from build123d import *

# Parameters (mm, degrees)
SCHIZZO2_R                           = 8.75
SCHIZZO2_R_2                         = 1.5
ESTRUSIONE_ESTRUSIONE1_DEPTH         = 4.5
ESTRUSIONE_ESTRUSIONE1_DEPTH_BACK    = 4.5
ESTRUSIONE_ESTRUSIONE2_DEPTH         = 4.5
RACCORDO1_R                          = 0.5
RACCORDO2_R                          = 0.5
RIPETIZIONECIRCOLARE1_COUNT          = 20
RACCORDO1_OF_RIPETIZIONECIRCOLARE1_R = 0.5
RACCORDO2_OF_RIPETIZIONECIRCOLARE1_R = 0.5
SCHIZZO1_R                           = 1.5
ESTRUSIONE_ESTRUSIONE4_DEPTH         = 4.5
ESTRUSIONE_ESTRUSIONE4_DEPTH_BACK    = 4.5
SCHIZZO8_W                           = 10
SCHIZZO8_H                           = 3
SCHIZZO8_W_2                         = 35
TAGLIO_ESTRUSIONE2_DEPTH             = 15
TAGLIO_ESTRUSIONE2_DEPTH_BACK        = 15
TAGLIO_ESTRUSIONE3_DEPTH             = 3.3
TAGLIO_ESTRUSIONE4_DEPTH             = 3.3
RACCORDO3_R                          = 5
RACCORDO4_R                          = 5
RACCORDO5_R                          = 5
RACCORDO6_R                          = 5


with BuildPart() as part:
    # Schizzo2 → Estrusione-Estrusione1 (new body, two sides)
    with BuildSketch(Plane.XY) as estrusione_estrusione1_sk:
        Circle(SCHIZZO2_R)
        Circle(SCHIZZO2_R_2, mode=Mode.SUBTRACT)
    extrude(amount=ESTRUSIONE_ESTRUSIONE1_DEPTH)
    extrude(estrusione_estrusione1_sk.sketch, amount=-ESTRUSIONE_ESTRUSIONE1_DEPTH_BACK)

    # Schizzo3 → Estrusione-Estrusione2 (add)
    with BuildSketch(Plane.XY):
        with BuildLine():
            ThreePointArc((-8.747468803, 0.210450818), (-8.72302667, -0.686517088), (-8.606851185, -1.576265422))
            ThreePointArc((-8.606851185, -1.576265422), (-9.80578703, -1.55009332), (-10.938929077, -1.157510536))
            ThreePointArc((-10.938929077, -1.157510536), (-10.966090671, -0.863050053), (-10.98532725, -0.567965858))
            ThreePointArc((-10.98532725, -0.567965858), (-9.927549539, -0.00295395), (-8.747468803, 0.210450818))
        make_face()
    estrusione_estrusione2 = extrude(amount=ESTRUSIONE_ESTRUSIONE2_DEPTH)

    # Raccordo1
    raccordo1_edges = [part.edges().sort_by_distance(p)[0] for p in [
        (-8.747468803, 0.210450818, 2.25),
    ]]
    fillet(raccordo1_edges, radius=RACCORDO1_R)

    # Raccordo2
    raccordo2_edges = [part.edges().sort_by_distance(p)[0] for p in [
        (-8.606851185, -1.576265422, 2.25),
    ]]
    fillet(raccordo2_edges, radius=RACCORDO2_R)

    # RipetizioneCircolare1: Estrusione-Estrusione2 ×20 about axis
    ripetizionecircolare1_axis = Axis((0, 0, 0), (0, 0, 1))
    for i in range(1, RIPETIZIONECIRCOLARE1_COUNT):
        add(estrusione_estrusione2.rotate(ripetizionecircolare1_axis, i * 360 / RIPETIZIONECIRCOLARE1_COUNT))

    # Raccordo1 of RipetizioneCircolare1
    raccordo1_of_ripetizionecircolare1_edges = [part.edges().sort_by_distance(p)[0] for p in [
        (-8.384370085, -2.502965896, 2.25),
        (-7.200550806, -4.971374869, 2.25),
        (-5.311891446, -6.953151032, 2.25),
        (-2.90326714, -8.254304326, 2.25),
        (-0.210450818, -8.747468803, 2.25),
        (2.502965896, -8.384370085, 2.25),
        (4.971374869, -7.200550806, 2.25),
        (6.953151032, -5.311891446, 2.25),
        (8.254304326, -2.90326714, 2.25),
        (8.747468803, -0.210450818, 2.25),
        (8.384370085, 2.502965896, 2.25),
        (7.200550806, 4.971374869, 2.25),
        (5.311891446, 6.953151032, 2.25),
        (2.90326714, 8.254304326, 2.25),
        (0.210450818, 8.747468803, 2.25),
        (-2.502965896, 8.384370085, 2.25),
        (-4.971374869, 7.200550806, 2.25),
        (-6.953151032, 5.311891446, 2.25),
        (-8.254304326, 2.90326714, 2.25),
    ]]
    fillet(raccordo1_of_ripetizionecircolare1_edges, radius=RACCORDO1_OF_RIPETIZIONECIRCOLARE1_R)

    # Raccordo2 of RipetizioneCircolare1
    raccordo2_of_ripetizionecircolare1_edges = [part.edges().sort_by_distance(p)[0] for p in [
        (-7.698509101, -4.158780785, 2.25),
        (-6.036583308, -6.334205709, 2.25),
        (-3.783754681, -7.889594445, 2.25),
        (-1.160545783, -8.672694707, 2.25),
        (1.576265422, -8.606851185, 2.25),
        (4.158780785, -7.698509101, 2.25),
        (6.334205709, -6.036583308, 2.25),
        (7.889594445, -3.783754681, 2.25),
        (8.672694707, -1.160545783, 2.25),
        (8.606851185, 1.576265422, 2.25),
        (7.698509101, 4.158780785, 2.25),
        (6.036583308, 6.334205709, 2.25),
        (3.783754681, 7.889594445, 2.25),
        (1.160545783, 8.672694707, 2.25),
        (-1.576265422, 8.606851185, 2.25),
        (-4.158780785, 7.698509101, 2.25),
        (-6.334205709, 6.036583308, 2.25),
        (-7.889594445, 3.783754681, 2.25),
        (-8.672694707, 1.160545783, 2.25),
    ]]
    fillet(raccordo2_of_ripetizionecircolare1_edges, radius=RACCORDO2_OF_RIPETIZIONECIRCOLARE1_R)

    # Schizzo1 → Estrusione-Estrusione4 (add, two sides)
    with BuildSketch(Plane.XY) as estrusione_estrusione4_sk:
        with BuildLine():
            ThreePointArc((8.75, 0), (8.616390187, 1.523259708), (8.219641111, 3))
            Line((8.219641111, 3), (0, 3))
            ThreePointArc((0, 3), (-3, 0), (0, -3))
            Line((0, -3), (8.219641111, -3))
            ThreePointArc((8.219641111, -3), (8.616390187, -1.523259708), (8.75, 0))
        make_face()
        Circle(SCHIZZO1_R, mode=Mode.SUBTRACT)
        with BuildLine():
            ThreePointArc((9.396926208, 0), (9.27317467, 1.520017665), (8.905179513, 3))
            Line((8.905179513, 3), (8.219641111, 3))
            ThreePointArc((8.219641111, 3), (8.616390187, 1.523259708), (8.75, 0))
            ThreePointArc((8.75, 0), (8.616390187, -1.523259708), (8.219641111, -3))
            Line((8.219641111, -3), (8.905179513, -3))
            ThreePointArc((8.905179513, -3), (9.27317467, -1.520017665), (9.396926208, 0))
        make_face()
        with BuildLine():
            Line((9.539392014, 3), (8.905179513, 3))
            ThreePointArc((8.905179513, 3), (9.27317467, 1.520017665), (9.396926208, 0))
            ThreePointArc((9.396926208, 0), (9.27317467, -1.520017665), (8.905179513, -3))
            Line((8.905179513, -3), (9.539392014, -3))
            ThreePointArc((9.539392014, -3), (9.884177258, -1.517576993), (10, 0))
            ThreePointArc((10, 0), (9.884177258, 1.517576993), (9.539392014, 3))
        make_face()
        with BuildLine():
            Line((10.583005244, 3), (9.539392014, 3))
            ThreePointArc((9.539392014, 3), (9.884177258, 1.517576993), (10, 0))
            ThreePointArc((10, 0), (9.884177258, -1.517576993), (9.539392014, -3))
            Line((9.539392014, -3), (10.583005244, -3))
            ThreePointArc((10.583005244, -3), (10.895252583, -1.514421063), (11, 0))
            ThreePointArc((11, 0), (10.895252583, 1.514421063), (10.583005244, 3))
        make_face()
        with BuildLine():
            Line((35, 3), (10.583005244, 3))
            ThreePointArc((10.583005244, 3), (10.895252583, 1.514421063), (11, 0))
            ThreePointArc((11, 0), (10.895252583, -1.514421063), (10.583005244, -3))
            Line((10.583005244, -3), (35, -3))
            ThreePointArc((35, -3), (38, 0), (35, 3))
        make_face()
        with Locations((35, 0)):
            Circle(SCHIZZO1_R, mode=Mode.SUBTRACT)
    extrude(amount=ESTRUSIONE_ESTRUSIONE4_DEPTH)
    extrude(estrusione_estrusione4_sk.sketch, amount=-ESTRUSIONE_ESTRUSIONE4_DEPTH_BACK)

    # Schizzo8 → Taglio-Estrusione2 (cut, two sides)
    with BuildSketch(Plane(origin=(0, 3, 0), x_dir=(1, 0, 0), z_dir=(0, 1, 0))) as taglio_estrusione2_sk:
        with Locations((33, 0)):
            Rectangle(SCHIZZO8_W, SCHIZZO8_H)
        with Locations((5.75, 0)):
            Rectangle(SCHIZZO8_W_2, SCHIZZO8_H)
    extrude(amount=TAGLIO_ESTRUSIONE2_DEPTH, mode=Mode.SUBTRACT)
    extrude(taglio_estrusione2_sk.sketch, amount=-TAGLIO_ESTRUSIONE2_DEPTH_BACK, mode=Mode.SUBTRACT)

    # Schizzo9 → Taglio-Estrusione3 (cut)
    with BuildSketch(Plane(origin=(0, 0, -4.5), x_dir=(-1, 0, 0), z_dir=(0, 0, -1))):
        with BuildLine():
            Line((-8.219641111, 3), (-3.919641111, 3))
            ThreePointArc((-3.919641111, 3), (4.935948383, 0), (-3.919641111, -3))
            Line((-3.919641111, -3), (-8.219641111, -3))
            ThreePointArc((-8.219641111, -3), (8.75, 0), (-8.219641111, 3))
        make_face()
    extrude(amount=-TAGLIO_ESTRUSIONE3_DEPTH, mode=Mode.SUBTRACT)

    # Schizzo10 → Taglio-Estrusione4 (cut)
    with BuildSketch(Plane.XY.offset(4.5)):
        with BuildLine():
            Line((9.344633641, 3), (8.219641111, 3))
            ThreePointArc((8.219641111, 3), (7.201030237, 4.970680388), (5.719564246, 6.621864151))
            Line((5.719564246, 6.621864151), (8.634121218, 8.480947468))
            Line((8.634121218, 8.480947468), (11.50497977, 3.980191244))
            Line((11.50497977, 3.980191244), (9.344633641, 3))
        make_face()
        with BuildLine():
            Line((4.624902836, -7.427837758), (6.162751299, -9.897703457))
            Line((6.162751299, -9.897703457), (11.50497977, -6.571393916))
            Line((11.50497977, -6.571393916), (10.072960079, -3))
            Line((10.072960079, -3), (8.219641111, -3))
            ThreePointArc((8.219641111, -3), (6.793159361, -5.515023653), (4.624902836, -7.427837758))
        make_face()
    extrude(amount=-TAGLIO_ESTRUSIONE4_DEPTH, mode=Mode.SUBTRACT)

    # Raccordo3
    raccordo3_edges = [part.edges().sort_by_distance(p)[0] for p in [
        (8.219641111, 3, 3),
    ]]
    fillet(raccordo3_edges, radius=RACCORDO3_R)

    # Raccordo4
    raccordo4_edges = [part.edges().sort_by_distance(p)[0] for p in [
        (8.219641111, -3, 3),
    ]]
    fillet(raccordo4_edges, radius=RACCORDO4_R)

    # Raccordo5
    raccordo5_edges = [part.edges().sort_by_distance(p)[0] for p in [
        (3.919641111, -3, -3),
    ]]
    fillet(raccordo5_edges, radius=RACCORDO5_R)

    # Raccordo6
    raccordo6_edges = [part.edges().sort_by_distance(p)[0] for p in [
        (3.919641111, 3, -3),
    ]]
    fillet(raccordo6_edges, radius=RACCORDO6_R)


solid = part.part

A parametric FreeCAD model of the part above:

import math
import FreeCAD as App
import Part
import Sketcher
from FreeCAD import Vector


def edges_at(feature, points):
    """Names of the edges that pass closest to the given points."""
    edges = feature.Shape.Edges
    near = lambda p: min(range(len(edges)), key=lambda i: edges[i].distToShape(Part.Vertex(*p))[0])
    return sorted({f"Edge{near(p) + 1}" for p in points})


def add_polygon(sketch, points):
    """Adds a closed chain of lines whose ends are joined by coincident constraints."""
    first, n = sketch.GeometryCount, len(points)
    for a, b in zip(points, points[1:] + points[:1]):
        sketch.addGeometry(Part.LineSegment(App.Vector(*a, 0), App.Vector(*b, 0)), False)
    for i in range(n):
        sketch.addConstraint(Sketcher.Constraint("Coincident", first + i, 2, first + (i + 1) % n, 1))

doc = App.newDocument("Part")
body = doc.addObject("PartDesign::Body", "Body")

# Sketch on XY plane
sketch1 = doc.addObject("Sketcher::SketchObject", "Sketch")
body.addObject(sketch1)
sketch1.AttachmentSupport = (doc.XY_Plane, [""])
sketch1.MapMode = "FlatFace"
sketch1.addGeometry([
    Part.Circle(Vector(0, 0, 0), Vector(0, 0, 1), 8.8),
    Part.Circle(Vector(0, 0, 0), Vector(0, 0, 1), 1.5),
], False)
sketch1.addConstraint([
    Sketcher.Constraint("Coincident", 0, 3, -1, 1),
    Sketcher.Constraint("Coincident", 1, 3, -1, 1),
    Sketcher.Constraint("Diameter", 1, 3.0),
    Sketcher.Constraint("Diameter", 0, 17.5),
])
pad1 = doc.addObject("PartDesign::Pad", "Pad")
body.addObject(pad1)
pad1.Profile = sketch1
pad1.Type = "TwoLengths"
pad1.Length = 4.5
pad1.Length2 = 4.5

# Sketch on XY plane
sketch2 = doc.addObject("Sketcher::SketchObject", "Sketch001")
body.addObject(sketch2)
sketch2.AttachmentSupport = (doc.XY_Plane, [""])
sketch2.MapMode = "FlatFace"
sketch2.addGeometry([
    Part.ArcOfCircle(Part.Circle(Vector(0, 0, 0), Vector(0, 0, 1), 8.8), math.radians(178.62), math.radians(190.38)),
    Part.ArcOfCircle(Part.Circle(Vector(-8.7, -3.7, 0), Vector(0, 0, 1), 3.9), math.radians(91), math.radians(127)),
    Part.ArcOfCircle(Part.Circle(Vector(0, 0, 0), Vector(0, 0, 1), 11), math.radians(-177.04), math.radians(-173.96)),
    Part.ArcOfCircle(Part.Circle(Vector(-9.1, 2.3, 0), Vector(0, 0, 1), 3.9), math.radians(-118), math.radians(-82)),
], False)
sketch2.addConstraint([
    Sketcher.Constraint("Coincident", 0, 1, 1, 1),
    Sketcher.Constraint("Coincident", 1, 2, 2, 1),
    Sketcher.Constraint("Coincident", 2, 2, 3, 1),
    Sketcher.Constraint("Coincident", 3, 2, 0, 2),
    Sketcher.Constraint("Coincident", 0, 3, -1, 1),
    Sketcher.Constraint("Coincident", 2, 3, -1, 1),
    Sketcher.Constraint("Equal", 1, 3),
    Sketcher.Constraint("Radius", 2, 11.0),
    Sketcher.Constraint("Radius", 0, 8.75),
    Sketcher.Constraint("Radius", 1, 3.863134),
    Sketcher.Constraint("DistanceX", 1, 2, 2, 2, 0.046398),
    Sketcher.Constraint("DistanceX", 2, 2, 3, 3, 1.815898),
    Sketcher.Constraint("DistanceY", 3, 2, 1, 2, 1.0083),
    Sketcher.Constraint("DistanceX", 0, 1, -1, 1, 8.747469),
])
pad2 = doc.addObject("PartDesign::Pad", "Pad001")
body.addObject(pad2)
pad2.Profile = sketch2
pad2.Length = 4.5
doc.recompute()

fillet = doc.addObject("PartDesign::Fillet", "Fillet")
body.addObject(fillet)
fillet.Base = (pad2, edges_at(pad2, [(-8.747, 0.21, 2.25)]))
fillet.Radius = 0.5
doc.recompute()

fillet2 = doc.addObject("PartDesign::Fillet", "Fillet001")
body.addObject(fillet2)
fillet2.Base = (fillet, edges_at(fillet, [(-8.607, -1.576, 2.25)]))
fillet2.Radius = 0.5
doc.recompute()

polarpattern = doc.addObject("PartDesign::PolarPattern", "PolarPattern")
body.addObject(polarpattern)
polarpattern.Originals = [pad2]
polarpattern.Axis = (doc.Z_Axis, [""])
polarpattern.Angle = 360
polarpattern.Occurrences = 20
body.Tip = polarpattern
doc.recompute()

fillet3 = doc.addObject("PartDesign::Fillet", "Fillet002")
body.addObject(fillet3)
fillet3.Base = (polarpattern, edges_at(polarpattern, [
    (-8.384, -2.503, 2.25),
    (-7.201, -4.971, 2.25),
    (-5.312, -6.953, 2.25),
    (-2.903, -8.254, 2.25),
    (-0.21, -8.747, 2.25),
    (2.503, -8.384, 2.25),
    (4.971, -7.201, 2.25),
    (6.953, -5.312, 2.25),
    (8.254, -2.903, 2.25),
    (8.747, -0.21, 2.25),
    (8.384, 2.503, 2.25),
    (7.201, 4.971, 2.25),
    (5.312, 6.953, 2.25),
    (2.903, 8.254, 2.25),
    (0.21, 8.747, 2.25),
    (-2.503, 8.384, 2.25),
    (-4.971, 7.201, 2.25),
    (-6.953, 5.312, 2.25),
    (-8.254, 2.903, 2.25),
]))
fillet3.Radius = 0.5
doc.recompute()

fillet4 = doc.addObject("PartDesign::Fillet", "Fillet003")
body.addObject(fillet4)
fillet4.Base = (fillet3, edges_at(fillet3, [
    (-7.699, -4.159, 2.25),
    (-6.037, -6.334, 2.25),
    (-3.784, -7.89, 2.25),
    (-1.161, -8.673, 2.25),
    (1.576, -8.607, 2.25),
    (4.159, -7.699, 2.25),
    (6.334, -6.037, 2.25),
    (7.89, -3.784, 2.25),
    (8.673, -1.161, 2.25),
    (8.607, 1.576, 2.25),
    (7.699, 4.159, 2.25),
    (6.037, 6.334, 2.25),
    (3.784, 7.89, 2.25),
    (1.161, 8.673, 2.25),
    (-1.576, 8.607, 2.25),
    (-4.159, 7.699, 2.25),
    (-6.334, 6.037, 2.25),
    (-7.89, 3.784, 2.25),
    (-8.673, 1.161, 2.25),
]))
fillet4.Radius = 0.5

# Sketch on XY plane
sketch3 = doc.addObject("Sketcher::SketchObject", "Sketch002")
body.addObject(sketch3)
sketch3.AttachmentSupport = (doc.XY_Plane, [""])
sketch3.MapMode = "FlatFace"
sketch3.addGeometry([
    Part.ArcOfCircle(Part.Circle(Vector(0, 0, 0), Vector(0, 0, 1), 3), math.radians(90), math.radians(270)),  # 0
    Part.LineSegment(Vector(0, -3, 0), Vector(35, -3, 0)),  # 1
    Part.ArcOfCircle(Part.Circle(Vector(35, 0, 0), Vector(0, 0, 1), 3), math.radians(-90), math.radians(90)),  # 2
    Part.LineSegment(Vector(35, 3, 0), Vector(0, 3, 0)),  # 3
    Part.Circle(Vector(0, 0, 0), Vector(0, 0, 1), 1.5),  # 4
    Part.Circle(Vector(35, 0, 0), Vector(0, 0, 1), 1.5),  # 5
], False)
sketch3.addConstraint([
    Sketcher.Constraint("Tangent", 0, 2, 1, 1),
    Sketcher.Constraint("Tangent", 1, 2, 2, 1),
    Sketcher.Constraint("Tangent", 2, 2, 3, 1),
    Sketcher.Constraint("Tangent", 3, 2, 0, 1),
    Sketcher.Constraint("Horizontal", 1),
    Sketcher.Constraint("Horizontal", 3),
    Sketcher.Constraint("Coincident", 0, 3, -1, 1),
    Sketcher.Constraint("Coincident", 4, 3, -1, 1),
    Sketcher.Constraint("Coincident", 5, 3, 2, 3),
    Sketcher.Constraint("Equal", 4, 5),
    Sketcher.Constraint("Diameter", 4, 3.0),
    Sketcher.Constraint("Radius", 0, 3.0),
    Sketcher.Constraint("DistanceX", 1, 1, 1, 2, 35.0),
])
pad3 = doc.addObject("PartDesign::Pad", "Pad002")
body.addObject(pad3)
pad3.Profile = sketch3
pad3.Type = "TwoLengths"
pad3.Length = 4.5
pad3.Length2 = 4.5

# Sketch on XZ plane
sketch4 = doc.addObject("Sketcher::SketchObject", "Sketch003")
body.addObject(sketch4)
sketch4.AttachmentSupport = (doc.XZ_Plane, [""])
sketch4.MapMode = "FlatFace"
sketch4.AttachmentOffset = App.Placement(Vector(0, 0, -3), App.Rotation())
add_polygon(sketch4, [(28, -1.5), (28, 1.5), (38, 1.5), (38, -1.5)])  # lines 0-3
add_polygon(sketch4, [(-11.8, -1.5), (-11.8, 1.5), (23.2, 1.5), (23.2, -1.5)])  # lines 4-7
sketch4.addConstraint([
    Sketcher.Constraint("Vertical", 0),
    Sketcher.Constraint("Horizontal", 1),
    Sketcher.Constraint("Vertical", 2),
    Sketcher.Constraint("Horizontal", 3),
    Sketcher.Constraint("Vertical", 4),
    Sketcher.Constraint("Horizontal", 5),
    Sketcher.Constraint("Vertical", 6),
    Sketcher.Constraint("Horizontal", 7),
    Sketcher.Constraint("Horizontal", 1, 2, 4, 2),
    Sketcher.Constraint("Horizontal", 3, 2, 6, 2),
    Sketcher.Constraint("DistanceX", 1, 1, 1, 2, 10.0),
    Sketcher.Constraint("DistanceX", 5, 1, 5, 2, 35.0),
    Sketcher.Constraint("DistanceY", 0, 1, 0, 2, 3.0),
    Sketcher.Constraint("DistanceX", -1, 1, 0, 2, 28.0),
    Sketcher.Constraint("DistanceY", -1, 1, 0, 2, 1.5),
    Sketcher.Constraint("DistanceX", 4, 2, -1, 1, 11.75),
])
pocket1 = doc.addObject("PartDesign::Pocket", "Pocket")
body.addObject(pocket1)
pocket1.Profile = sketch4
pocket1.Type = "ThroughAll"
pocket1.Midplane = True

# Sketch on XY plane
sketch5 = doc.addObject("Sketcher::SketchObject", "Sketch004")
body.addObject(sketch5)
sketch5.AttachmentSupport = (doc.XY_Plane, [""])
sketch5.MapMode = "FlatFace"
sketch5.AttachmentOffset = App.Placement(Vector(0, 0, -4.5), App.Rotation())
sketch5.addGeometry([
    Part.LineSegment(Vector(8.2, 3, 0), Vector(3.9, 3, 0)),
    Part.ArcOfCircle(Part.Circle(Vector(0, 0, 0), Vector(0, 0, 1), 4.9), math.radians(37), math.radians(323)),
    Part.LineSegment(Vector(3.9, -3, 0), Vector(8.2, -3, 0)),
    Part.ArcOfCircle(Part.Circle(Vector(0, 0, 0), Vector(0, 0, 1), 8.8), math.radians(20), math.radians(340)),
], False)
sketch5.addConstraint([
    Sketcher.Constraint("Coincident", 0, 2, 1, 1),
    Sketcher.Constraint("Coincident", 1, 2, 2, 1),
    Sketcher.Constraint("Coincident", 2, 2, 3, 2),
    Sketcher.Constraint("Coincident", 3, 1, 0, 1),
    Sketcher.Constraint("Horizontal", 0),
    Sketcher.Constraint("Horizontal", 2),
    Sketcher.Constraint("Coincident", 1, 3, -1, 1),
    Sketcher.Constraint("Coincident", 3, 3, -1, 1),
    Sketcher.Constraint("Vertical", 0, 2, 1, 2),
    Sketcher.Constraint("Radius", 3, 8.75),
    Sketcher.Constraint("DistanceX", 0, 2, 0, 1, 4.3),
    Sketcher.Constraint("DistanceY", -1, 1, 0, 2, 3.0),
])
pocket2 = doc.addObject("PartDesign::Pocket", "Pocket001")
body.addObject(pocket2)
pocket2.Profile = sketch5
pocket2.Length = 3.3
pocket2.Reversed = True

# Sketch on XY plane
sketch6 = doc.addObject("Sketcher::SketchObject", "Sketch005")
body.addObject(sketch6)
sketch6.AttachmentSupport = (doc.XY_Plane, [""])
sketch6.MapMode = "FlatFace"
sketch6.AttachmentOffset = App.Placement(Vector(0, 0, 4.5), App.Rotation())
sketch6.addGeometry([
    Part.LineSegment(Vector(8.2, 3, 0), Vector(9.3, 3, 0)),  # 0
    Part.LineSegment(Vector(9.3, 3, 0), Vector(11.5, 4, 0)),  # 1
    Part.LineSegment(Vector(11.5, 4, 0), Vector(8.6, 8.5, 0)),  # 2
    Part.LineSegment(Vector(8.6, 8.5, 0), Vector(5.7, 6.6, 0)),  # 3
    Part.ArcOfCircle(Part.Circle(Vector(0, 0, 0), Vector(0, 0, 1), 8.8), math.radians(20), math.radians(49)),  # 4
    Part.LineSegment(Vector(4.6, -7.4, 0), Vector(6.2, -9.9, 0)),  # 5
    Part.LineSegment(Vector(6.2, -9.9, 0), Vector(11.5, -6.6, 0)),  # 6
    Part.LineSegment(Vector(11.5, -6.6, 0), Vector(10.1, -3, 0)),  # 7
    Part.LineSegment(Vector(10.1, -3, 0), Vector(8.2, -3, 0)),  # 8
    Part.ArcOfCircle(Part.Circle(Vector(0, 0, 0), Vector(0, 0, 1), 8.8), math.radians(-58), math.radians(-20)),  # 9
], False)
sketch6.addConstraint([
    Sketcher.Constraint("Coincident", 0, 2, 1, 1),
    Sketcher.Constraint("Coincident", 1, 2, 2, 1),
    Sketcher.Constraint("Coincident", 2, 2, 3, 1),
    Sketcher.Constraint("Coincident", 3, 2, 4, 2),
    Sketcher.Constraint("Coincident", 4, 1, 0, 1),
    Sketcher.Constraint("Coincident", 5, 2, 6, 1),
    Sketcher.Constraint("Coincident", 6, 2, 7, 1),
    Sketcher.Constraint("Coincident", 7, 2, 8, 1),
    Sketcher.Constraint("Coincident", 8, 2, 9, 2),
    Sketcher.Constraint("Coincident", 9, 1, 5, 1),
    Sketcher.Constraint("Horizontal", 0),
    Sketcher.Constraint("Horizontal", 8),
    Sketcher.Constraint("Coincident", 4, 3, -1, 1),
    Sketcher.Constraint("Coincident", 9, 3, -1, 1),
    Sketcher.Constraint("Equal", 4, 9),
    Sketcher.Constraint("Perpendicular", 2, 3),
    Sketcher.Constraint("Perpendicular", 5, 6),
    Sketcher.Constraint("Vertical", 1, 2, 6, 2),
    Sketcher.Constraint("Vertical", 4, 1, 8, 2),
    Sketcher.Constraint("Radius", 4, 8.75),
    Sketcher.Constraint("DistanceY", -1, 1, 0, 2, 3.0),
    Sketcher.Constraint("DistanceX", 8, 2, 8, 1, 1.853319),
    Sketcher.Constraint("Distance", 2, 5.338411),
    Sketcher.Constraint("Distance", 6, 6.29315),
    Sketcher.Constraint("DistanceX", 0, 1, 0, 2, 1.124993),
    Sketcher.Constraint("DistanceX", -1, 1, 1, 2, 11.50498),
    Sketcher.Constraint("DistanceY", -1, 1, 1, 2, 3.980191),
    Sketcher.Constraint("DistanceX", -1, 1, 2, 2, 8.634121),
    Sketcher.Constraint("DistanceX", -1, 1, 5, 2, 6.162751),
    Sketcher.Constraint("DistanceX", 9, 1, 5, 2, 1.537848),
])
pocket3 = doc.addObject("PartDesign::Pocket", "Pocket002")
body.addObject(pocket3)
pocket3.Profile = sketch6
pocket3.Length = 3.3
doc.recompute()

fillet5 = doc.addObject("PartDesign::Fillet", "Fillet004")
body.addObject(fillet5)
fillet5.Base = (pocket3, edges_at(pocket3, [(8.22, 3, 3)]))
fillet5.Radius = 5
doc.recompute()

fillet6 = doc.addObject("PartDesign::Fillet", "Fillet005")
body.addObject(fillet6)
fillet6.Base = (fillet5, edges_at(fillet5, [(8.22, -3, 3)]))
fillet6.Radius = 5
doc.recompute()

fillet7 = doc.addObject("PartDesign::Fillet", "Fillet006")
body.addObject(fillet7)
fillet7.Base = (fillet6, edges_at(fillet6, [(3.92, -3, -3)]))
fillet7.Radius = 5
doc.recompute()

fillet8 = doc.addObject("PartDesign::Fillet", "Fillet007")
body.addObject(fillet8)
fillet8.Base = (fillet7, edges_at(fillet7, [(3.92, 3, -3)]))
fillet8.Radius = 5

doc.recompute()
